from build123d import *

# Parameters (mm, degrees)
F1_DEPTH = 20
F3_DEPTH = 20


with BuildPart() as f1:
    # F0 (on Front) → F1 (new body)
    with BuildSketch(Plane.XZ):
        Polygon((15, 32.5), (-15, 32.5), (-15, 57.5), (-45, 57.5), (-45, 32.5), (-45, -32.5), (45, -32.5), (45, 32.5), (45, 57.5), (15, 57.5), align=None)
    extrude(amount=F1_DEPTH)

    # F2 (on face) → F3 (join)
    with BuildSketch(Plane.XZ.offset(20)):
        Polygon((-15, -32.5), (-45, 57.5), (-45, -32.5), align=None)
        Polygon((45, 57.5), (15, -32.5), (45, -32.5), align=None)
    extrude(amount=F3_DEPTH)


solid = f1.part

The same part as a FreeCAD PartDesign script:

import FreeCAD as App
import Part
import Sketcher
Q = App.Units.Quantity

doc = App.newDocument("Part")
body = doc.addObject("PartDesign::Body", "Body")

# Sketch on XZ plane
sketch1 = body.newObject("Sketcher::SketchObject", "Sketch")
sketch1.AttachmentSupport = (doc.getObject("XZ_Plane"), [""])
sketch1.MapMode = "FlatFace"
sketch1.addGeometry(Part.LineSegment(App.Vector(15, 32.5, 0), App.Vector(-15, 32.5, 0)), False)
sketch1.addGeometry(Part.LineSegment(App.Vector(-15, 32.5, 0), App.Vector(-15, 57.5, 0)), False)
sketch1.addGeometry(Part.LineSegment(App.Vector(-15, 57.5, 0), App.Vector(-45, 57.5, 0)), False)
sketch1.addGeometry(Part.LineSegment(App.Vector(-45, 57.5, 0), App.Vector(-45, -32.5, 0)), False)
sketch1.addGeometry(Part.LineSegment(App.Vector(-45, -32.5, 0), App.Vector(45, -32.5, 0)), False)
sketch1.addGeometry(Part.LineSegment(App.Vector(45, -32.5, 0), App.Vector(45, 57.5, 0)), False)
sketch1.addGeometry(Part.LineSegment(App.Vector(45, 57.5, 0), App.Vector(15, 57.5, 0)), False)
sketch1.addGeometry(Part.LineSegment(App.Vector(15, 57.5, 0), App.Vector(15, 32.5, 0)), False)
sketch1.addConstraint(Sketcher.Constraint("Coincident", 0, 2, 1, 1))
sketch1.addConstraint(Sketcher.Constraint("Coincident", 1, 2, 2, 1))
sketch1.addConstraint(Sketcher.Constraint("Coincident", 2, 2, 3, 1))
sketch1.addConstraint(Sketcher.Constraint("Coincident", 3, 2, 4, 1))
sketch1.addConstraint(Sketcher.Constraint("Coincident", 4, 2, 5, 1))
sketch1.addConstraint(Sketcher.Constraint("Coincident", 5, 2, 6, 1))
sketch1.addConstraint(Sketcher.Constraint("Coincident", 6, 2, 7, 1))
sketch1.addConstraint(Sketcher.Constraint("Coincident", 7, 2, 0, 1))
sketch1.addConstraint(Sketcher.Constraint("Horizontal", 0))
sketch1.addConstraint(Sketcher.Constraint("Vertical", 1))
sketch1.addConstraint(Sketcher.Constraint("Horizontal", 2))
sketch1.addConstraint(Sketcher.Constraint("Vertical", 3))
sketch1.addConstraint(Sketcher.Constraint("Horizontal", 4))
sketch1.addConstraint(Sketcher.Constraint("Vertical", 5))
sketch1.addConstraint(Sketcher.Constraint("Horizontal", 6))
sketch1.addConstraint(Sketcher.Constraint("Vertical", 7))
sketch1.addConstraint(Sketcher.Constraint("Symmetric", 2, 2, 5, 2, -2))
sketch1.addConstraint(Sketcher.Constraint("Equal", 0, 2))
sketch1.addConstraint(Sketcher.Constraint("Equal", 2, 6))
sketch1.addConstraint(Sketcher.Constraint("Equal", 4, 3))
sketch1.addConstraint(Sketcher.Constraint("DistanceX", 0, 2, 0, 1, Q("30 mm")))
sketch1.addConstraint(Sketcher.Constraint("DistanceY", 1, 1, 1, 2, Q("25 mm")))
sketch1.addConstraint(Sketcher.Constraint("DistanceY", -1, 1, 0, 2, Q("32.5 mm")))
pad1 = body.newObject("PartDesign::Pad", "Pad")
pad1.Profile = sketch1
pad1.Length = 20

# Sketch on XZ plane
sketch2 = body.newObject("Sketcher::SketchObject", "Sketch001")
sketch2.AttachmentSupport = (doc.getObject("XZ_Plane"), [""])
sketch2.MapMode = "FlatFace"
sketch2.AttachmentOffset = App.Placement(App.Vector(0, 0, 20), App.Rotation())
sketch2.addGeometry(Part.LineSegment(App.Vector(-15, -32.5, 0), App.Vector(-45, 57.5, 0)), False)
sketch2.addGeometry(Part.LineSegment(App.Vector(-45, 57.5, 0), App.Vector(-45, -32.5, 0)), False)
sketch2.addGeometry(Part.LineSegment(App.Vector(-45, -32.5, 0), App.Vector(-15, -32.5, 0)), False)
sketch2.addGeometry(Part.LineSegment(App.Vector(45, 57.5, 0), App.Vector(15, -32.5, 0)), False)
sketch2.addGeometry(Part.LineSegment(App.Vector(15, -32.5, 0), App.Vector(45, -32.5, 0)), False)
sketch2.addGeometry(Part.LineSegment(App.Vector(45, -32.5, 0), App.Vector(45, 57.5, 0)), False)
sketch2.addConstraint(Sketcher.Constraint("Coincident", 0, 2, 1, 1))
sketch2.addConstraint(Sketcher.Constraint("Coincident", 1, 2, 2, 1))
sketch2.addConstraint(Sketcher.Constraint("Coincident", 2, 2, 0, 1))
sketch2.addConstraint(Sketcher.Constraint("Coincident", 3, 2, 4, 1))
sketch2.addConstraint(Sketcher.Constraint("Coincident", 4, 2, 5, 1))
sketch2.addConstraint(Sketcher.Constraint("Coincident", 5, 2, 3, 1))
sketch2.addConstraint(Sketcher.Constraint("Vertical", 1))
sketch2.addConstraint(Sketcher.Constraint("Horizontal", 2))
sketch2.addConstraint(Sketcher.Constraint("Horizontal", 4))
sketch2.addConstraint(Sketcher.Constraint("Vertical", 5))
sketch2.addConstraint(Sketcher.Constraint("Symmetric", 2, 2, 3, 2, -2))
sketch2.addConstraint(Sketcher.Constraint("Symmetric", 0, 2, 5, 2, -2))
sketch2.addConstraint(Sketcher.Constraint("DistanceX", 2, 1, 2, 2, Q("30 mm")))
sketch2.addConstraint(Sketcher.Constraint("DistanceY", 1, 2, 1, 1, Q("90 mm")))
sketch2.addConstraint(Sketcher.Constraint("DistanceX", 0, 2, -1, 1, Q("45 mm")))
sketch2.addConstraint(Sketcher.Constraint("DistanceY", -1, 1, 0, 2, Q("57.5 mm")))
pad2 = body.newObject("PartDesign::Pad", "Pad001")
pad2.Profile = sketch2
pad2.Length = 20

doc.recompute()
